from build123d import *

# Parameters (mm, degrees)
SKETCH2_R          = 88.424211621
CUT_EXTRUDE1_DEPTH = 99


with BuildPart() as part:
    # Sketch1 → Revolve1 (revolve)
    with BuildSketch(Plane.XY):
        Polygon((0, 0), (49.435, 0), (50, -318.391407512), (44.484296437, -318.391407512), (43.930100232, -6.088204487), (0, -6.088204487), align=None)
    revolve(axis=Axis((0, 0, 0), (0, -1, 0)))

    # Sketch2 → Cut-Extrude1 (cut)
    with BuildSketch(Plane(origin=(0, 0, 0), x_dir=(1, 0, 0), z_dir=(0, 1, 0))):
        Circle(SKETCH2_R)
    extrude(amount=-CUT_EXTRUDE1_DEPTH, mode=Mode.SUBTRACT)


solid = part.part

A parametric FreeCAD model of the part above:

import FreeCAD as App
import Part
import Sketcher
from FreeCAD import Vector
Q = App.Units.Quantity

doc = App.newDocument("Part")
body = doc.addObject("PartDesign::Body", "Body")

sketch1 = doc.addObject("Sketcher::SketchObject", "Sketch")
body.addObject(sketch1)
sketch1.AttachmentSupport = (doc.XY_Plane, [""])
sketch1.MapMode = "FlatFace"
sketch1.addGeometry([
    Part.LineSegment(Vector(49.435, 0, 0), Vector(0, 0, 0)),
    Part.LineSegment(Vector(0, 0, 0), Vector(0, -6.088204, 0)),
    Part.LineSegment(Vector(0, -6.088204, 0), Vector(43.9301, -6.088204, 0)),
    Part.LineSegment(Vector(43.9301, -6.088204, 0), Vector(44.484296, -318.391408, 0)),
    Part.LineSegment(Vector(44.484296, -318.391408, 0), Vector(50, -318.391408, 0)),
    Part.LineSegment(Vector(50, -318.391408, 0), Vector(49.435, 0, 0)),
], False)
sketch1.addConstraint([
    Sketcher.Constraint("Coincident", 0, 2, 1, 1),
    Sketcher.Constraint("Coincident", 1, 2, 2, 1),
    Sketcher.Constraint("Coincident", 2, 2, 3, 1),
    Sketcher.Constraint("Coincident", 3, 2, 4, 1),
    Sketcher.Constraint("Coincident", 4, 2, 5, 1),
    Sketcher.Constraint("Coincident", 5, 2, 0, 1),
    Sketcher.Constraint("Horizontal", 0),
    Sketcher.Constraint("Vertical", 1),
    Sketcher.Constraint("Horizontal", 2),
    Sketcher.Constraint("Horizontal", 4),
    Sketcher.Constraint("Coincident", 0, 2, -1, 1),
    Sketcher.Constraint("Parallel", 3, 5),
    Sketcher.Constraint("DistanceX", -1, 1, 4, 2, Q("50 mm")),
    Sketcher.Constraint("DistanceX", 0, 2, 0, 1, Q("49.435 mm")),
    Sketcher.Constraint("DistanceX", 2, 1, 2, 2, Q("43.9301 mm")),
    Sketcher.Constraint("Distance", 5, Q("318.391909 mm")),
    Sketcher.Constraint("DistanceY", 1, 2, 1, 1, Q("6.088204 mm")),
])
revolution = doc.addObject("PartDesign::Revolution", "Revolution")
body.addObject(revolution)
revolution.Profile = sketch1
revolution.ReferenceAxis = (sketch1, ["V_Axis"])
revolution.Angle = 360

sketch2 = doc.addObject("Sketcher::SketchObject", "Sketch001")
body.addObject(sketch2)
sketch2.AttachmentSupport = (doc.XZ_Plane, [""])
sketch2.MapMode = "FlatFace"
sketch2.addGeometry(Part.Circle(Vector(0, 0, 0), Vector(0, 0, 1), 88.424212), False)
sketch2.addConstraint([
    Sketcher.Constraint("Coincident", 0, 3, -1, 1),
    Sketcher.Constraint("Diameter", 0, Q("176.848423 mm")),
])
pocket1 = doc.addObject("PartDesign::Pocket", "Pocket")
body.addObject(pocket1)
pocket1.Profile = sketch2
pocket1.Length = 99
pocket1.Reversed = True

doc.recompute()
